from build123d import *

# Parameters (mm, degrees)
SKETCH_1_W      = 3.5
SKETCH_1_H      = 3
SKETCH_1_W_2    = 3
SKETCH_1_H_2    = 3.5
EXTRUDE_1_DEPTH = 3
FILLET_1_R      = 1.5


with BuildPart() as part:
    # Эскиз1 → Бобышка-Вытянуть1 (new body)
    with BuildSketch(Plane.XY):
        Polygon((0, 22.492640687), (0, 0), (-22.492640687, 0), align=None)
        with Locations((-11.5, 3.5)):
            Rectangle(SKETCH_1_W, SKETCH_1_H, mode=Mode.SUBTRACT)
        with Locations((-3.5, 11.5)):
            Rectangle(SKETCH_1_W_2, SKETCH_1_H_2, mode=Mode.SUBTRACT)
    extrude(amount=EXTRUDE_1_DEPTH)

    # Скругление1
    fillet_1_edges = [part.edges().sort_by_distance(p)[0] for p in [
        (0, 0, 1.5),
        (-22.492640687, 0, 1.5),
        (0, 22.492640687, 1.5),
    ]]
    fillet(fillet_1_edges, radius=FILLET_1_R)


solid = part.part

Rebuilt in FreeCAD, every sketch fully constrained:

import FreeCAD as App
import Part
import Sketcher
Q = App.Units.Quantity


def edges_at(feature, points):
    """Names of the edges that pass closest to the given points."""
    edges = feature.Shape.Edges
    near = lambda p: min(range(len(edges)), key=lambda i: edges[i].distToShape(Part.Vertex(*p))[0])
    return sorted({f"Edge{near(p) + 1}" for p in points})

doc = App.newDocument("Part")
body = doc.addObject("PartDesign::Body", "Body")

# Sketch on XY plane
sketch1 = doc.addObject("Sketcher::SketchObject", "Sketch")
body.addObject(sketch1)
sketch1.AttachmentSupport = (doc.XY_Plane, [""])
sketch1.MapMode = "FlatFace"
sketch1.addGeometry([
    Part.LineSegment(App.Vector(0, 0, 0), App.Vector(0, 22.5, 0)),  # 0
    Part.LineSegment(App.Vector(0, 22.5, 0), App.Vector(-22.5, 0, 0)),  # 1
    Part.LineSegment(App.Vector(-22.5, 0, 0), App.Vector(0, 0, 0)),  # 2
    Part.LineSegment(App.Vector(-13.2, 2, 0), App.Vector(-13.2, 5, 0)),  # 3
    Part.LineSegment(App.Vector(-13.2, 5, 0), App.Vector(-9.8, 5, 0)),  # 4
    Part.LineSegment(App.Vector(-9.8, 5, 0), App.Vector(-9.8, 2, 0)),  # 5
    Part.LineSegment(App.Vector(-9.8, 2, 0), App.Vector(-13.2, 2, 0)),  # 6
    Part.LineSegment(App.Vector(-5, 9.8, 0), App.Vector(-5, 13.2, 0)),  # 7
    Part.LineSegment(App.Vector(-5, 13.2, 0), App.Vector(-2, 13.2, 0)),  # 8
    Part.LineSegment(App.Vector(-2, 13.2, 0), App.Vector(-2, 9.8, 0)),  # 9
    Part.LineSegment(App.Vector(-2, 9.8, 0), App.Vector(-5, 9.8, 0)),  # 10
], False)
sketch1.addConstraint([
    Sketcher.Constraint("Coincident", 0, 2, 1, 1),
    Sketcher.Constraint("Coincident", 1, 2, 2, 1),
    Sketcher.Constraint("Coincident", 2, 2, 0, 1),
    Sketcher.Constraint("Coincident", 3, 2, 4, 1),
    Sketcher.Constraint("Coincident", 4, 2, 5, 1),
    Sketcher.Constraint("Coincident", 5, 2, 6, 1),
    Sketcher.Constraint("Coincident", 6, 2, 3, 1),
    Sketcher.Constraint("Coincident", 7, 2, 8, 1),
    Sketcher.Constraint("Coincident", 8, 2, 9, 1),
    Sketcher.Constraint("Coincident", 9, 2, 10, 1),
    Sketcher.Constraint("Coincident", 10, 2, 7, 1),
    Sketcher.Constraint("Vertical", 0),
    Sketcher.Constraint("Horizontal", 2),
    Sketcher.Constraint("Vertical", 3),
    Sketcher.Constraint("Horizontal", 4),
    Sketcher.Constraint("Vertical", 5),
    Sketcher.Constraint("Horizontal", 6),
    Sketcher.Constraint("Vertical", 7),
    Sketcher.Constraint("Horizontal", 8),
    Sketcher.Constraint("Vertical", 9),
    Sketcher.Constraint("Horizontal", 10),
    Sketcher.Constraint("Coincident", 2, 2, -1, 1),
    Sketcher.Constraint("Equal", 2, 0),
    Sketcher.Constraint("Equal", 10, 3),
    Sketcher.Constraint("Equal", 6, 7),
    Sketcher.Constraint("DistanceX", 8, 1, 8, 2, Q("3 mm")),
    Sketcher.Constraint("DistanceX", 4, 1, 4, 2, Q("3.5 mm")),
    Sketcher.Constraint("DistanceY", -1, 1, 3, 2, Q("5 mm")),
    Sketcher.Constraint("DistanceX", 7, 2, -1, 1, Q("5 mm")),
    Sketcher.Constraint("DistanceX", 3, 2, -1, 1, Q("13.25 mm")),
    Sketcher.Constraint("DistanceY", -1, 1, 7, 2, Q("13.25 mm")),
    Sketcher.Constraint("DistanceX", 2, 1, 2, 2, Q("22.492641 mm")),
])
pad1 = doc.addObject("PartDesign::Pad", "Pad")
body.addObject(pad1)
pad1.Profile = sketch1
pad1.Length = 3
doc.recompute()

fillet = doc.addObject("PartDesign::Fillet", "Fillet")
body.addObject(fillet)
fillet.Base = (pad1, edges_at(pad1, [(0, 0, 1.5), (-22.493, 0, 1.5), (0, 22.493, 1.5)]))
fillet.Radius = 1.5

doc.recompute()
